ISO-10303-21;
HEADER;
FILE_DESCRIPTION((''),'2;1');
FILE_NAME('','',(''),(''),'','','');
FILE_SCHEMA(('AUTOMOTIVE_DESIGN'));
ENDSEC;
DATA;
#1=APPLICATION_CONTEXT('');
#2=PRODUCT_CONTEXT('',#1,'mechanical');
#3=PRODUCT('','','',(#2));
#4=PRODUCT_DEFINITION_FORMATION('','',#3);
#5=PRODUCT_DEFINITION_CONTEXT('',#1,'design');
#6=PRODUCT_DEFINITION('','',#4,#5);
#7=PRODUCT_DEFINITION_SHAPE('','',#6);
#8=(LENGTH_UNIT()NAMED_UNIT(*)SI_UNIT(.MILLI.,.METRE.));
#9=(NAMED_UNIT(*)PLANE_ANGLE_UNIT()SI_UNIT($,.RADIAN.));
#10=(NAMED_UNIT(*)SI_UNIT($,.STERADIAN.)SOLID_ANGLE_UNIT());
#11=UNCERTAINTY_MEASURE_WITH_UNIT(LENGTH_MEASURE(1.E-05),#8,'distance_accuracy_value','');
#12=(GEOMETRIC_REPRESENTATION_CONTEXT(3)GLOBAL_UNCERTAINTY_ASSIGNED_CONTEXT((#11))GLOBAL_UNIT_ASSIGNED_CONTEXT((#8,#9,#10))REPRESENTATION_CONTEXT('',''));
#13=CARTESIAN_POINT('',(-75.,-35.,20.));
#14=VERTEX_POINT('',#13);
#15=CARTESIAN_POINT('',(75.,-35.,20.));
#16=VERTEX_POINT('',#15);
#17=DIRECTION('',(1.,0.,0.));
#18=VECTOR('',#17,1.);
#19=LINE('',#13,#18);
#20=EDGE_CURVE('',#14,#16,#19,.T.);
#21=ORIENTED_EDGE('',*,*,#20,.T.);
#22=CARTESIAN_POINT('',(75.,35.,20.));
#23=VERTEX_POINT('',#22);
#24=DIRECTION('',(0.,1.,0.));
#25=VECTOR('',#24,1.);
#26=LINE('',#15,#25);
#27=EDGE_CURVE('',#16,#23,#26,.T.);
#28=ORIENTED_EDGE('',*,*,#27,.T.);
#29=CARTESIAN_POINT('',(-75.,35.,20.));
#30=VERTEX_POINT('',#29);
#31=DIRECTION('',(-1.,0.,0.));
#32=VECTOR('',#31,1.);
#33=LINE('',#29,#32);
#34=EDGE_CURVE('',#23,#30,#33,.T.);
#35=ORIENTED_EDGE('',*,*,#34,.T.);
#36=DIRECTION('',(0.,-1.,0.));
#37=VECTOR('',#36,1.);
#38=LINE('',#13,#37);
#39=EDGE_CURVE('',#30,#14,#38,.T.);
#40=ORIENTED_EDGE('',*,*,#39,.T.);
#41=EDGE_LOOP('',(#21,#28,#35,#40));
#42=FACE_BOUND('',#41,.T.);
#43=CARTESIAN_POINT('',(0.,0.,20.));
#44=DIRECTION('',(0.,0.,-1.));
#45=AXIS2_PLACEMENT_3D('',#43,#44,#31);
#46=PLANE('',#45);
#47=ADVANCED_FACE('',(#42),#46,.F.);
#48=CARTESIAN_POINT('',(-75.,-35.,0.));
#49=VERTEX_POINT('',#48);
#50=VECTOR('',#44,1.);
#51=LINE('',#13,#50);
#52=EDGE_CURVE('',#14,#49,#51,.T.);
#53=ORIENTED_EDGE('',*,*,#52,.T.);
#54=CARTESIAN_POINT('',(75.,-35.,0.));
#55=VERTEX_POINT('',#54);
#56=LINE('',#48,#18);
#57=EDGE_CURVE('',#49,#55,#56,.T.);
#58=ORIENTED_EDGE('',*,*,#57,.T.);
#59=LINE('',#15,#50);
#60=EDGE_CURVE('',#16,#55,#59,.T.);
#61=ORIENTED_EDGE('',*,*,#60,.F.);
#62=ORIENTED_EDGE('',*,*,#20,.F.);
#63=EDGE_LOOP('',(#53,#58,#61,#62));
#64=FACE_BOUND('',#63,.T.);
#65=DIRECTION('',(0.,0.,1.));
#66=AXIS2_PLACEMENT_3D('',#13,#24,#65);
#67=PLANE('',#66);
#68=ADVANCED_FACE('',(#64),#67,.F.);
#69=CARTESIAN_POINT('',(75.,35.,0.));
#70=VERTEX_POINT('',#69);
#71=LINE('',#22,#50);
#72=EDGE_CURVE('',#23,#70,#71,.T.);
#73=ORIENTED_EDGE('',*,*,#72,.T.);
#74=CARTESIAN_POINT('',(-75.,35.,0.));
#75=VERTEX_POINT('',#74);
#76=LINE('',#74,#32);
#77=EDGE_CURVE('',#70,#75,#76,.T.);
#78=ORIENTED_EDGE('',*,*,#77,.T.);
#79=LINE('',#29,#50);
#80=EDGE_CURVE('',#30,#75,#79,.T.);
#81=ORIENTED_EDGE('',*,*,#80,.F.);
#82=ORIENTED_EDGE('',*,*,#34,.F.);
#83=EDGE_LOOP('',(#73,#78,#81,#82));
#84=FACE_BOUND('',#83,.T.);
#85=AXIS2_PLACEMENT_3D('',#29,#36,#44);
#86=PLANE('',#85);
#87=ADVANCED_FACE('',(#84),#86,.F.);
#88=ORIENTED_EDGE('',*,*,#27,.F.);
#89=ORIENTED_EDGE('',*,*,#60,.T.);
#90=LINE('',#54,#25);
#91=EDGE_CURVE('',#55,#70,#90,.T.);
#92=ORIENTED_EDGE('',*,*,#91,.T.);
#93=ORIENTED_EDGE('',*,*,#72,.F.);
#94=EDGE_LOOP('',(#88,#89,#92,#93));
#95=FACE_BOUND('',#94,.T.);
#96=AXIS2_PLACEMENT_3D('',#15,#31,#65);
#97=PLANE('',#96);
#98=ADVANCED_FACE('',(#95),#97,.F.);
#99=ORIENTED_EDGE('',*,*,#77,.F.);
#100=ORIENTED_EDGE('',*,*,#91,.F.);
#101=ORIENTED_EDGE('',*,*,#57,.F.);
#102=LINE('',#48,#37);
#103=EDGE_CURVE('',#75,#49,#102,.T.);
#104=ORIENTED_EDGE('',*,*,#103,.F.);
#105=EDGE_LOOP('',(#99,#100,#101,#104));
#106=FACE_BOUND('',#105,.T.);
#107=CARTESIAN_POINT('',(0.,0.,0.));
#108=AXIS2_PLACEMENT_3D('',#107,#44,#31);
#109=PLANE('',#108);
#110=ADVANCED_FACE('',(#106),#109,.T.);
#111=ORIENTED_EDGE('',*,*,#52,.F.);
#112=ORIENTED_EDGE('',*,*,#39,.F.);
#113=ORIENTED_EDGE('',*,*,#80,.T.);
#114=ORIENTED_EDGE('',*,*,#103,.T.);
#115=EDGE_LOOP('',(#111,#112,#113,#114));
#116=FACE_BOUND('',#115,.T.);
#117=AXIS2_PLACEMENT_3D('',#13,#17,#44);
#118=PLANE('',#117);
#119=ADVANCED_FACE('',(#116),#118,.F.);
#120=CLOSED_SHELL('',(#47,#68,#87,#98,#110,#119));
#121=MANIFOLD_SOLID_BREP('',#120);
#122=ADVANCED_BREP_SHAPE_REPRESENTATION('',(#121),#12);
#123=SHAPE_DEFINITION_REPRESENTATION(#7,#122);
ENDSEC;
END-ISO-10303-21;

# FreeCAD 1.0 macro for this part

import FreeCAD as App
import Part
import Sketcher
from FreeCAD import Vector
Q = App.Units.Quantity


def add_polygon(sketch, points):
    """Adds a closed chain of lines whose ends are joined by coincident constraints."""
    first, n = sketch.GeometryCount, len(points)
    for a, b in zip(points, points[1:] + points[:1]):
        sketch.addGeometry(Part.LineSegment(App.Vector(*a, 0), App.Vector(*b, 0)), False)
    for i in range(n):
        sketch.addConstraint(Sketcher.Constraint("Coincident", first + i, 2, first + (i + 1) % n, 1))

doc = App.newDocument("Part")
body = doc.addObject("PartDesign::Body", "Body")

# Sketch on XY plane
sketch1 = body.newObject("Sketcher::SketchObject", "Sketch")
sketch1.AttachmentSupport = (doc.getObject("XY_Plane"), [""])
sketch1.MapMode = "FlatFace"
add_polygon(sketch1, [(-75, 35), (-75, -35), (75, -35), (75, 35)])  # lines 0-3
sketch1.addConstraint(Sketcher.Constraint("Vertical", 0))
sketch1.addConstraint(Sketcher.Constraint("Horizontal", 1))
sketch1.addConstraint(Sketcher.Constraint("Vertical", 2))
sketch1.addConstraint(Sketcher.Constraint("Horizontal", 3))
sketch1.addConstraint(Sketcher.Constraint("Symmetric", 0, 2, 2, 2, -1, 1))
sketch1.addConstraint(Sketcher.Constraint("DistanceX", 1, 1, 1, 2, Q("150 mm")))
sketch1.addConstraint(Sketcher.Constraint("DistanceY", 0, 2, 0, 1, Q("70 mm")))
pad1 = body.newObject("PartDesign::Pad", "Pad")
pad1.Profile = sketch1
pad1.Length = 20

doc.recompute()
